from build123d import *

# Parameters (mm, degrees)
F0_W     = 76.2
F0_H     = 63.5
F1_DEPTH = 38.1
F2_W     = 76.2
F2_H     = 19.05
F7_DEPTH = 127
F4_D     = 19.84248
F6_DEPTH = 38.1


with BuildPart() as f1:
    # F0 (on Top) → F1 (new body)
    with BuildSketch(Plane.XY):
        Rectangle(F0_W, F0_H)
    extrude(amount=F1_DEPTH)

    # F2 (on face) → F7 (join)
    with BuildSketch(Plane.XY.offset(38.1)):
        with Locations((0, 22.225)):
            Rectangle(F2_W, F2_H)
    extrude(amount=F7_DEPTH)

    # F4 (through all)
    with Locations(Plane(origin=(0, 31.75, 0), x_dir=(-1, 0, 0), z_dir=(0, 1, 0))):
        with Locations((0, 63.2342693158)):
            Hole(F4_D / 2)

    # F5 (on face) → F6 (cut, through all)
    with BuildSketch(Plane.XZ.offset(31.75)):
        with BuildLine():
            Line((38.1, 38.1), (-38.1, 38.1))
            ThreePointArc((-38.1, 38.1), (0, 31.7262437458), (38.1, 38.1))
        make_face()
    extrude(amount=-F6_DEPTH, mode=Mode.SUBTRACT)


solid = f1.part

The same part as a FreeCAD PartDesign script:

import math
import FreeCAD as App
import Part
import Sketcher

V = App.Vector
Q = App.Units.Quantity

doc = App.newDocument("Part")
body = doc.addObject("PartDesign::Body", "Body")

# Sketch on XY plane
sketch1 = body.newObject("Sketcher::SketchObject", "Sketch")
sketch1.AttachmentSupport = (doc.getObject("XY_Plane"), [""])
sketch1.MapMode = "FlatFace"
sketch1.addGeometry([
    Part.LineSegment(V(-38, 32, 0), V(-38, -32, 0)),
    Part.LineSegment(V(-38, -32, 0), V(38, -32, 0)),
    Part.LineSegment(V(38, -32, 0), V(38, 32, 0)),
    Part.LineSegment(V(38, 32, 0), V(-38, 32, 0)),
], False)
sketch1.addConstraint([
    Sketcher.Constraint("Coincident", 0, 2, 1, 1),
    Sketcher.Constraint("Coincident", 1, 2, 2, 1),
    Sketcher.Constraint("Coincident", 2, 2, 3, 1),
    Sketcher.Constraint("Coincident", 3, 2, 0, 1),
    Sketcher.Constraint("Vertical", 0),
    Sketcher.Constraint("Horizontal", 1),
    Sketcher.Constraint("Vertical", 2),
    Sketcher.Constraint("Horizontal", 3),
    Sketcher.Constraint("Symmetric", 0, 2, 2, 2, -1, 1),
    Sketcher.Constraint("DistanceX", 1, 1, 1, 2, Q("3 in")),
    Sketcher.Constraint("DistanceY", 0, 2, 0, 1, Q("2.5 in")),
])
pad1 = body.newObject("PartDesign::Pad", "Pad")
pad1.Profile = sketch1
pad1.Length = Q("1.5 in")

# Sketch on XY plane
sketch2 = body.newObject("Sketcher::SketchObject", "Sketch001")
sketch2.AttachmentSupport = (doc.getObject("XY_Plane"), [""])
sketch2.MapMode = "FlatFace"
sketch2.AttachmentOffset = App.Placement(V(0, 0, 1.5 * 25.4), App.Rotation())
sketch2.addGeometry([
    Part.LineSegment(V(-38, 32, 0), V(-38, 13, 0)),
    Part.LineSegment(V(-38, 13, 0), V(38, 13, 0)),
    Part.LineSegment(V(38, 13, 0), V(38, 32, 0)),
    Part.LineSegment(V(38, 32, 0), V(-38, 32, 0)),
], False)
sketch2.addConstraint([
    Sketcher.Constraint("Coincident", 0, 2, 1, 1),
    Sketcher.Constraint("Coincident", 1, 2, 2, 1),
    Sketcher.Constraint("Coincident", 2, 2, 3, 1),
    Sketcher.Constraint("Coincident", 3, 2, 0, 1),
    Sketcher.Constraint("Vertical", 0),
    Sketcher.Constraint("Horizontal", 1),
    Sketcher.Constraint("Vertical", 2),
    Sketcher.Constraint("Horizontal", 3),
    Sketcher.Constraint("DistanceX", 1, 1, 1, 2, Q("3 in")),
    Sketcher.Constraint("DistanceY", 0, 2, 0, 1, Q("0.75 in")),
    Sketcher.Constraint("DistanceX", 0, 2, -1, 1, Q("1.5 in")),
    Sketcher.Constraint("DistanceY", -1, 1, 0, 2, Q("0.5 in")),
])
pad2 = body.newObject("PartDesign::Pad", "Pad001")
pad2.Profile = sketch2
pad2.Length = Q("5 in")

# Sketch on XZ plane
sketch3 = body.newObject("Sketcher::SketchObject", "Sketch002")
sketch3.AttachmentSupport = (doc.getObject("XZ_Plane"), [""])
sketch3.MapMode = "FlatFace"
sketch3.AttachmentOffset = App.Placement(V(0, 0, -1.25 * 25.4), App.Rotation())
sketch3.addGeometry(Part.Circle(V(0, 63, 0), V(0, 0, 1), 10), False)
sketch3.addConstraint([
    Sketcher.Constraint("PointOnObject", 0, 3, -2),
    Sketcher.Constraint("Diameter", 0, Q("0.7812 in")),
    Sketcher.Constraint("DistanceY", -1, 1, 0, 3, 63.234269),
])
doc.recompute()
hole = body.newObject("PartDesign::Hole", "Hole")
hole.Profile = sketch3
hole.ThreadType = "None"
hole.Diameter = Q("0.7812 in")
hole.DepthType = "ThroughAll"
hole.Reversed = True

# Sketch on XZ plane
sketch4 = body.newObject("Sketcher::SketchObject", "Sketch003")
sketch4.AttachmentSupport = (doc.getObject("XZ_Plane"), [""])
sketch4.MapMode = "FlatFace"
sketch4.AttachmentOffset = App.Placement(V(0, 0, 1.25 * 25.4), App.Rotation())
sketch4.addGeometry([
    Part.LineSegment(V(38, 38, 0), V(-38, 38, 0)),
    Part.ArcOfCircle(Part.Circle(V(0, 149, 0), V(0, 0, 1), 117), math.radians(-109), math.radians(-71)),
], False)
sketch4.addConstraint([
    Sketcher.Constraint("Coincident", 0, 1, 1, 2),
    Sketcher.Constraint("Coincident", 1, 1, 0, 2),
    Sketcher.Constraint("Horizontal", 0),
    Sketcher.Constraint("PointOnObject", 1, 3, -2),
    Sketcher.Constraint("DistanceX", 0, 2, 0, 1, Q("3 in")),
    Sketcher.Constraint("DistanceY", -1, 1, 0, 1, Q("1.5 in")),
    Sketcher.Constraint("Radius", 1, 117.060859),
])
pocket1 = body.newObject("PartDesign::Pocket", "Pocket")
pocket1.Profile = sketch4
pocket1.Length = Q("1.5 in")

doc.recompute()
